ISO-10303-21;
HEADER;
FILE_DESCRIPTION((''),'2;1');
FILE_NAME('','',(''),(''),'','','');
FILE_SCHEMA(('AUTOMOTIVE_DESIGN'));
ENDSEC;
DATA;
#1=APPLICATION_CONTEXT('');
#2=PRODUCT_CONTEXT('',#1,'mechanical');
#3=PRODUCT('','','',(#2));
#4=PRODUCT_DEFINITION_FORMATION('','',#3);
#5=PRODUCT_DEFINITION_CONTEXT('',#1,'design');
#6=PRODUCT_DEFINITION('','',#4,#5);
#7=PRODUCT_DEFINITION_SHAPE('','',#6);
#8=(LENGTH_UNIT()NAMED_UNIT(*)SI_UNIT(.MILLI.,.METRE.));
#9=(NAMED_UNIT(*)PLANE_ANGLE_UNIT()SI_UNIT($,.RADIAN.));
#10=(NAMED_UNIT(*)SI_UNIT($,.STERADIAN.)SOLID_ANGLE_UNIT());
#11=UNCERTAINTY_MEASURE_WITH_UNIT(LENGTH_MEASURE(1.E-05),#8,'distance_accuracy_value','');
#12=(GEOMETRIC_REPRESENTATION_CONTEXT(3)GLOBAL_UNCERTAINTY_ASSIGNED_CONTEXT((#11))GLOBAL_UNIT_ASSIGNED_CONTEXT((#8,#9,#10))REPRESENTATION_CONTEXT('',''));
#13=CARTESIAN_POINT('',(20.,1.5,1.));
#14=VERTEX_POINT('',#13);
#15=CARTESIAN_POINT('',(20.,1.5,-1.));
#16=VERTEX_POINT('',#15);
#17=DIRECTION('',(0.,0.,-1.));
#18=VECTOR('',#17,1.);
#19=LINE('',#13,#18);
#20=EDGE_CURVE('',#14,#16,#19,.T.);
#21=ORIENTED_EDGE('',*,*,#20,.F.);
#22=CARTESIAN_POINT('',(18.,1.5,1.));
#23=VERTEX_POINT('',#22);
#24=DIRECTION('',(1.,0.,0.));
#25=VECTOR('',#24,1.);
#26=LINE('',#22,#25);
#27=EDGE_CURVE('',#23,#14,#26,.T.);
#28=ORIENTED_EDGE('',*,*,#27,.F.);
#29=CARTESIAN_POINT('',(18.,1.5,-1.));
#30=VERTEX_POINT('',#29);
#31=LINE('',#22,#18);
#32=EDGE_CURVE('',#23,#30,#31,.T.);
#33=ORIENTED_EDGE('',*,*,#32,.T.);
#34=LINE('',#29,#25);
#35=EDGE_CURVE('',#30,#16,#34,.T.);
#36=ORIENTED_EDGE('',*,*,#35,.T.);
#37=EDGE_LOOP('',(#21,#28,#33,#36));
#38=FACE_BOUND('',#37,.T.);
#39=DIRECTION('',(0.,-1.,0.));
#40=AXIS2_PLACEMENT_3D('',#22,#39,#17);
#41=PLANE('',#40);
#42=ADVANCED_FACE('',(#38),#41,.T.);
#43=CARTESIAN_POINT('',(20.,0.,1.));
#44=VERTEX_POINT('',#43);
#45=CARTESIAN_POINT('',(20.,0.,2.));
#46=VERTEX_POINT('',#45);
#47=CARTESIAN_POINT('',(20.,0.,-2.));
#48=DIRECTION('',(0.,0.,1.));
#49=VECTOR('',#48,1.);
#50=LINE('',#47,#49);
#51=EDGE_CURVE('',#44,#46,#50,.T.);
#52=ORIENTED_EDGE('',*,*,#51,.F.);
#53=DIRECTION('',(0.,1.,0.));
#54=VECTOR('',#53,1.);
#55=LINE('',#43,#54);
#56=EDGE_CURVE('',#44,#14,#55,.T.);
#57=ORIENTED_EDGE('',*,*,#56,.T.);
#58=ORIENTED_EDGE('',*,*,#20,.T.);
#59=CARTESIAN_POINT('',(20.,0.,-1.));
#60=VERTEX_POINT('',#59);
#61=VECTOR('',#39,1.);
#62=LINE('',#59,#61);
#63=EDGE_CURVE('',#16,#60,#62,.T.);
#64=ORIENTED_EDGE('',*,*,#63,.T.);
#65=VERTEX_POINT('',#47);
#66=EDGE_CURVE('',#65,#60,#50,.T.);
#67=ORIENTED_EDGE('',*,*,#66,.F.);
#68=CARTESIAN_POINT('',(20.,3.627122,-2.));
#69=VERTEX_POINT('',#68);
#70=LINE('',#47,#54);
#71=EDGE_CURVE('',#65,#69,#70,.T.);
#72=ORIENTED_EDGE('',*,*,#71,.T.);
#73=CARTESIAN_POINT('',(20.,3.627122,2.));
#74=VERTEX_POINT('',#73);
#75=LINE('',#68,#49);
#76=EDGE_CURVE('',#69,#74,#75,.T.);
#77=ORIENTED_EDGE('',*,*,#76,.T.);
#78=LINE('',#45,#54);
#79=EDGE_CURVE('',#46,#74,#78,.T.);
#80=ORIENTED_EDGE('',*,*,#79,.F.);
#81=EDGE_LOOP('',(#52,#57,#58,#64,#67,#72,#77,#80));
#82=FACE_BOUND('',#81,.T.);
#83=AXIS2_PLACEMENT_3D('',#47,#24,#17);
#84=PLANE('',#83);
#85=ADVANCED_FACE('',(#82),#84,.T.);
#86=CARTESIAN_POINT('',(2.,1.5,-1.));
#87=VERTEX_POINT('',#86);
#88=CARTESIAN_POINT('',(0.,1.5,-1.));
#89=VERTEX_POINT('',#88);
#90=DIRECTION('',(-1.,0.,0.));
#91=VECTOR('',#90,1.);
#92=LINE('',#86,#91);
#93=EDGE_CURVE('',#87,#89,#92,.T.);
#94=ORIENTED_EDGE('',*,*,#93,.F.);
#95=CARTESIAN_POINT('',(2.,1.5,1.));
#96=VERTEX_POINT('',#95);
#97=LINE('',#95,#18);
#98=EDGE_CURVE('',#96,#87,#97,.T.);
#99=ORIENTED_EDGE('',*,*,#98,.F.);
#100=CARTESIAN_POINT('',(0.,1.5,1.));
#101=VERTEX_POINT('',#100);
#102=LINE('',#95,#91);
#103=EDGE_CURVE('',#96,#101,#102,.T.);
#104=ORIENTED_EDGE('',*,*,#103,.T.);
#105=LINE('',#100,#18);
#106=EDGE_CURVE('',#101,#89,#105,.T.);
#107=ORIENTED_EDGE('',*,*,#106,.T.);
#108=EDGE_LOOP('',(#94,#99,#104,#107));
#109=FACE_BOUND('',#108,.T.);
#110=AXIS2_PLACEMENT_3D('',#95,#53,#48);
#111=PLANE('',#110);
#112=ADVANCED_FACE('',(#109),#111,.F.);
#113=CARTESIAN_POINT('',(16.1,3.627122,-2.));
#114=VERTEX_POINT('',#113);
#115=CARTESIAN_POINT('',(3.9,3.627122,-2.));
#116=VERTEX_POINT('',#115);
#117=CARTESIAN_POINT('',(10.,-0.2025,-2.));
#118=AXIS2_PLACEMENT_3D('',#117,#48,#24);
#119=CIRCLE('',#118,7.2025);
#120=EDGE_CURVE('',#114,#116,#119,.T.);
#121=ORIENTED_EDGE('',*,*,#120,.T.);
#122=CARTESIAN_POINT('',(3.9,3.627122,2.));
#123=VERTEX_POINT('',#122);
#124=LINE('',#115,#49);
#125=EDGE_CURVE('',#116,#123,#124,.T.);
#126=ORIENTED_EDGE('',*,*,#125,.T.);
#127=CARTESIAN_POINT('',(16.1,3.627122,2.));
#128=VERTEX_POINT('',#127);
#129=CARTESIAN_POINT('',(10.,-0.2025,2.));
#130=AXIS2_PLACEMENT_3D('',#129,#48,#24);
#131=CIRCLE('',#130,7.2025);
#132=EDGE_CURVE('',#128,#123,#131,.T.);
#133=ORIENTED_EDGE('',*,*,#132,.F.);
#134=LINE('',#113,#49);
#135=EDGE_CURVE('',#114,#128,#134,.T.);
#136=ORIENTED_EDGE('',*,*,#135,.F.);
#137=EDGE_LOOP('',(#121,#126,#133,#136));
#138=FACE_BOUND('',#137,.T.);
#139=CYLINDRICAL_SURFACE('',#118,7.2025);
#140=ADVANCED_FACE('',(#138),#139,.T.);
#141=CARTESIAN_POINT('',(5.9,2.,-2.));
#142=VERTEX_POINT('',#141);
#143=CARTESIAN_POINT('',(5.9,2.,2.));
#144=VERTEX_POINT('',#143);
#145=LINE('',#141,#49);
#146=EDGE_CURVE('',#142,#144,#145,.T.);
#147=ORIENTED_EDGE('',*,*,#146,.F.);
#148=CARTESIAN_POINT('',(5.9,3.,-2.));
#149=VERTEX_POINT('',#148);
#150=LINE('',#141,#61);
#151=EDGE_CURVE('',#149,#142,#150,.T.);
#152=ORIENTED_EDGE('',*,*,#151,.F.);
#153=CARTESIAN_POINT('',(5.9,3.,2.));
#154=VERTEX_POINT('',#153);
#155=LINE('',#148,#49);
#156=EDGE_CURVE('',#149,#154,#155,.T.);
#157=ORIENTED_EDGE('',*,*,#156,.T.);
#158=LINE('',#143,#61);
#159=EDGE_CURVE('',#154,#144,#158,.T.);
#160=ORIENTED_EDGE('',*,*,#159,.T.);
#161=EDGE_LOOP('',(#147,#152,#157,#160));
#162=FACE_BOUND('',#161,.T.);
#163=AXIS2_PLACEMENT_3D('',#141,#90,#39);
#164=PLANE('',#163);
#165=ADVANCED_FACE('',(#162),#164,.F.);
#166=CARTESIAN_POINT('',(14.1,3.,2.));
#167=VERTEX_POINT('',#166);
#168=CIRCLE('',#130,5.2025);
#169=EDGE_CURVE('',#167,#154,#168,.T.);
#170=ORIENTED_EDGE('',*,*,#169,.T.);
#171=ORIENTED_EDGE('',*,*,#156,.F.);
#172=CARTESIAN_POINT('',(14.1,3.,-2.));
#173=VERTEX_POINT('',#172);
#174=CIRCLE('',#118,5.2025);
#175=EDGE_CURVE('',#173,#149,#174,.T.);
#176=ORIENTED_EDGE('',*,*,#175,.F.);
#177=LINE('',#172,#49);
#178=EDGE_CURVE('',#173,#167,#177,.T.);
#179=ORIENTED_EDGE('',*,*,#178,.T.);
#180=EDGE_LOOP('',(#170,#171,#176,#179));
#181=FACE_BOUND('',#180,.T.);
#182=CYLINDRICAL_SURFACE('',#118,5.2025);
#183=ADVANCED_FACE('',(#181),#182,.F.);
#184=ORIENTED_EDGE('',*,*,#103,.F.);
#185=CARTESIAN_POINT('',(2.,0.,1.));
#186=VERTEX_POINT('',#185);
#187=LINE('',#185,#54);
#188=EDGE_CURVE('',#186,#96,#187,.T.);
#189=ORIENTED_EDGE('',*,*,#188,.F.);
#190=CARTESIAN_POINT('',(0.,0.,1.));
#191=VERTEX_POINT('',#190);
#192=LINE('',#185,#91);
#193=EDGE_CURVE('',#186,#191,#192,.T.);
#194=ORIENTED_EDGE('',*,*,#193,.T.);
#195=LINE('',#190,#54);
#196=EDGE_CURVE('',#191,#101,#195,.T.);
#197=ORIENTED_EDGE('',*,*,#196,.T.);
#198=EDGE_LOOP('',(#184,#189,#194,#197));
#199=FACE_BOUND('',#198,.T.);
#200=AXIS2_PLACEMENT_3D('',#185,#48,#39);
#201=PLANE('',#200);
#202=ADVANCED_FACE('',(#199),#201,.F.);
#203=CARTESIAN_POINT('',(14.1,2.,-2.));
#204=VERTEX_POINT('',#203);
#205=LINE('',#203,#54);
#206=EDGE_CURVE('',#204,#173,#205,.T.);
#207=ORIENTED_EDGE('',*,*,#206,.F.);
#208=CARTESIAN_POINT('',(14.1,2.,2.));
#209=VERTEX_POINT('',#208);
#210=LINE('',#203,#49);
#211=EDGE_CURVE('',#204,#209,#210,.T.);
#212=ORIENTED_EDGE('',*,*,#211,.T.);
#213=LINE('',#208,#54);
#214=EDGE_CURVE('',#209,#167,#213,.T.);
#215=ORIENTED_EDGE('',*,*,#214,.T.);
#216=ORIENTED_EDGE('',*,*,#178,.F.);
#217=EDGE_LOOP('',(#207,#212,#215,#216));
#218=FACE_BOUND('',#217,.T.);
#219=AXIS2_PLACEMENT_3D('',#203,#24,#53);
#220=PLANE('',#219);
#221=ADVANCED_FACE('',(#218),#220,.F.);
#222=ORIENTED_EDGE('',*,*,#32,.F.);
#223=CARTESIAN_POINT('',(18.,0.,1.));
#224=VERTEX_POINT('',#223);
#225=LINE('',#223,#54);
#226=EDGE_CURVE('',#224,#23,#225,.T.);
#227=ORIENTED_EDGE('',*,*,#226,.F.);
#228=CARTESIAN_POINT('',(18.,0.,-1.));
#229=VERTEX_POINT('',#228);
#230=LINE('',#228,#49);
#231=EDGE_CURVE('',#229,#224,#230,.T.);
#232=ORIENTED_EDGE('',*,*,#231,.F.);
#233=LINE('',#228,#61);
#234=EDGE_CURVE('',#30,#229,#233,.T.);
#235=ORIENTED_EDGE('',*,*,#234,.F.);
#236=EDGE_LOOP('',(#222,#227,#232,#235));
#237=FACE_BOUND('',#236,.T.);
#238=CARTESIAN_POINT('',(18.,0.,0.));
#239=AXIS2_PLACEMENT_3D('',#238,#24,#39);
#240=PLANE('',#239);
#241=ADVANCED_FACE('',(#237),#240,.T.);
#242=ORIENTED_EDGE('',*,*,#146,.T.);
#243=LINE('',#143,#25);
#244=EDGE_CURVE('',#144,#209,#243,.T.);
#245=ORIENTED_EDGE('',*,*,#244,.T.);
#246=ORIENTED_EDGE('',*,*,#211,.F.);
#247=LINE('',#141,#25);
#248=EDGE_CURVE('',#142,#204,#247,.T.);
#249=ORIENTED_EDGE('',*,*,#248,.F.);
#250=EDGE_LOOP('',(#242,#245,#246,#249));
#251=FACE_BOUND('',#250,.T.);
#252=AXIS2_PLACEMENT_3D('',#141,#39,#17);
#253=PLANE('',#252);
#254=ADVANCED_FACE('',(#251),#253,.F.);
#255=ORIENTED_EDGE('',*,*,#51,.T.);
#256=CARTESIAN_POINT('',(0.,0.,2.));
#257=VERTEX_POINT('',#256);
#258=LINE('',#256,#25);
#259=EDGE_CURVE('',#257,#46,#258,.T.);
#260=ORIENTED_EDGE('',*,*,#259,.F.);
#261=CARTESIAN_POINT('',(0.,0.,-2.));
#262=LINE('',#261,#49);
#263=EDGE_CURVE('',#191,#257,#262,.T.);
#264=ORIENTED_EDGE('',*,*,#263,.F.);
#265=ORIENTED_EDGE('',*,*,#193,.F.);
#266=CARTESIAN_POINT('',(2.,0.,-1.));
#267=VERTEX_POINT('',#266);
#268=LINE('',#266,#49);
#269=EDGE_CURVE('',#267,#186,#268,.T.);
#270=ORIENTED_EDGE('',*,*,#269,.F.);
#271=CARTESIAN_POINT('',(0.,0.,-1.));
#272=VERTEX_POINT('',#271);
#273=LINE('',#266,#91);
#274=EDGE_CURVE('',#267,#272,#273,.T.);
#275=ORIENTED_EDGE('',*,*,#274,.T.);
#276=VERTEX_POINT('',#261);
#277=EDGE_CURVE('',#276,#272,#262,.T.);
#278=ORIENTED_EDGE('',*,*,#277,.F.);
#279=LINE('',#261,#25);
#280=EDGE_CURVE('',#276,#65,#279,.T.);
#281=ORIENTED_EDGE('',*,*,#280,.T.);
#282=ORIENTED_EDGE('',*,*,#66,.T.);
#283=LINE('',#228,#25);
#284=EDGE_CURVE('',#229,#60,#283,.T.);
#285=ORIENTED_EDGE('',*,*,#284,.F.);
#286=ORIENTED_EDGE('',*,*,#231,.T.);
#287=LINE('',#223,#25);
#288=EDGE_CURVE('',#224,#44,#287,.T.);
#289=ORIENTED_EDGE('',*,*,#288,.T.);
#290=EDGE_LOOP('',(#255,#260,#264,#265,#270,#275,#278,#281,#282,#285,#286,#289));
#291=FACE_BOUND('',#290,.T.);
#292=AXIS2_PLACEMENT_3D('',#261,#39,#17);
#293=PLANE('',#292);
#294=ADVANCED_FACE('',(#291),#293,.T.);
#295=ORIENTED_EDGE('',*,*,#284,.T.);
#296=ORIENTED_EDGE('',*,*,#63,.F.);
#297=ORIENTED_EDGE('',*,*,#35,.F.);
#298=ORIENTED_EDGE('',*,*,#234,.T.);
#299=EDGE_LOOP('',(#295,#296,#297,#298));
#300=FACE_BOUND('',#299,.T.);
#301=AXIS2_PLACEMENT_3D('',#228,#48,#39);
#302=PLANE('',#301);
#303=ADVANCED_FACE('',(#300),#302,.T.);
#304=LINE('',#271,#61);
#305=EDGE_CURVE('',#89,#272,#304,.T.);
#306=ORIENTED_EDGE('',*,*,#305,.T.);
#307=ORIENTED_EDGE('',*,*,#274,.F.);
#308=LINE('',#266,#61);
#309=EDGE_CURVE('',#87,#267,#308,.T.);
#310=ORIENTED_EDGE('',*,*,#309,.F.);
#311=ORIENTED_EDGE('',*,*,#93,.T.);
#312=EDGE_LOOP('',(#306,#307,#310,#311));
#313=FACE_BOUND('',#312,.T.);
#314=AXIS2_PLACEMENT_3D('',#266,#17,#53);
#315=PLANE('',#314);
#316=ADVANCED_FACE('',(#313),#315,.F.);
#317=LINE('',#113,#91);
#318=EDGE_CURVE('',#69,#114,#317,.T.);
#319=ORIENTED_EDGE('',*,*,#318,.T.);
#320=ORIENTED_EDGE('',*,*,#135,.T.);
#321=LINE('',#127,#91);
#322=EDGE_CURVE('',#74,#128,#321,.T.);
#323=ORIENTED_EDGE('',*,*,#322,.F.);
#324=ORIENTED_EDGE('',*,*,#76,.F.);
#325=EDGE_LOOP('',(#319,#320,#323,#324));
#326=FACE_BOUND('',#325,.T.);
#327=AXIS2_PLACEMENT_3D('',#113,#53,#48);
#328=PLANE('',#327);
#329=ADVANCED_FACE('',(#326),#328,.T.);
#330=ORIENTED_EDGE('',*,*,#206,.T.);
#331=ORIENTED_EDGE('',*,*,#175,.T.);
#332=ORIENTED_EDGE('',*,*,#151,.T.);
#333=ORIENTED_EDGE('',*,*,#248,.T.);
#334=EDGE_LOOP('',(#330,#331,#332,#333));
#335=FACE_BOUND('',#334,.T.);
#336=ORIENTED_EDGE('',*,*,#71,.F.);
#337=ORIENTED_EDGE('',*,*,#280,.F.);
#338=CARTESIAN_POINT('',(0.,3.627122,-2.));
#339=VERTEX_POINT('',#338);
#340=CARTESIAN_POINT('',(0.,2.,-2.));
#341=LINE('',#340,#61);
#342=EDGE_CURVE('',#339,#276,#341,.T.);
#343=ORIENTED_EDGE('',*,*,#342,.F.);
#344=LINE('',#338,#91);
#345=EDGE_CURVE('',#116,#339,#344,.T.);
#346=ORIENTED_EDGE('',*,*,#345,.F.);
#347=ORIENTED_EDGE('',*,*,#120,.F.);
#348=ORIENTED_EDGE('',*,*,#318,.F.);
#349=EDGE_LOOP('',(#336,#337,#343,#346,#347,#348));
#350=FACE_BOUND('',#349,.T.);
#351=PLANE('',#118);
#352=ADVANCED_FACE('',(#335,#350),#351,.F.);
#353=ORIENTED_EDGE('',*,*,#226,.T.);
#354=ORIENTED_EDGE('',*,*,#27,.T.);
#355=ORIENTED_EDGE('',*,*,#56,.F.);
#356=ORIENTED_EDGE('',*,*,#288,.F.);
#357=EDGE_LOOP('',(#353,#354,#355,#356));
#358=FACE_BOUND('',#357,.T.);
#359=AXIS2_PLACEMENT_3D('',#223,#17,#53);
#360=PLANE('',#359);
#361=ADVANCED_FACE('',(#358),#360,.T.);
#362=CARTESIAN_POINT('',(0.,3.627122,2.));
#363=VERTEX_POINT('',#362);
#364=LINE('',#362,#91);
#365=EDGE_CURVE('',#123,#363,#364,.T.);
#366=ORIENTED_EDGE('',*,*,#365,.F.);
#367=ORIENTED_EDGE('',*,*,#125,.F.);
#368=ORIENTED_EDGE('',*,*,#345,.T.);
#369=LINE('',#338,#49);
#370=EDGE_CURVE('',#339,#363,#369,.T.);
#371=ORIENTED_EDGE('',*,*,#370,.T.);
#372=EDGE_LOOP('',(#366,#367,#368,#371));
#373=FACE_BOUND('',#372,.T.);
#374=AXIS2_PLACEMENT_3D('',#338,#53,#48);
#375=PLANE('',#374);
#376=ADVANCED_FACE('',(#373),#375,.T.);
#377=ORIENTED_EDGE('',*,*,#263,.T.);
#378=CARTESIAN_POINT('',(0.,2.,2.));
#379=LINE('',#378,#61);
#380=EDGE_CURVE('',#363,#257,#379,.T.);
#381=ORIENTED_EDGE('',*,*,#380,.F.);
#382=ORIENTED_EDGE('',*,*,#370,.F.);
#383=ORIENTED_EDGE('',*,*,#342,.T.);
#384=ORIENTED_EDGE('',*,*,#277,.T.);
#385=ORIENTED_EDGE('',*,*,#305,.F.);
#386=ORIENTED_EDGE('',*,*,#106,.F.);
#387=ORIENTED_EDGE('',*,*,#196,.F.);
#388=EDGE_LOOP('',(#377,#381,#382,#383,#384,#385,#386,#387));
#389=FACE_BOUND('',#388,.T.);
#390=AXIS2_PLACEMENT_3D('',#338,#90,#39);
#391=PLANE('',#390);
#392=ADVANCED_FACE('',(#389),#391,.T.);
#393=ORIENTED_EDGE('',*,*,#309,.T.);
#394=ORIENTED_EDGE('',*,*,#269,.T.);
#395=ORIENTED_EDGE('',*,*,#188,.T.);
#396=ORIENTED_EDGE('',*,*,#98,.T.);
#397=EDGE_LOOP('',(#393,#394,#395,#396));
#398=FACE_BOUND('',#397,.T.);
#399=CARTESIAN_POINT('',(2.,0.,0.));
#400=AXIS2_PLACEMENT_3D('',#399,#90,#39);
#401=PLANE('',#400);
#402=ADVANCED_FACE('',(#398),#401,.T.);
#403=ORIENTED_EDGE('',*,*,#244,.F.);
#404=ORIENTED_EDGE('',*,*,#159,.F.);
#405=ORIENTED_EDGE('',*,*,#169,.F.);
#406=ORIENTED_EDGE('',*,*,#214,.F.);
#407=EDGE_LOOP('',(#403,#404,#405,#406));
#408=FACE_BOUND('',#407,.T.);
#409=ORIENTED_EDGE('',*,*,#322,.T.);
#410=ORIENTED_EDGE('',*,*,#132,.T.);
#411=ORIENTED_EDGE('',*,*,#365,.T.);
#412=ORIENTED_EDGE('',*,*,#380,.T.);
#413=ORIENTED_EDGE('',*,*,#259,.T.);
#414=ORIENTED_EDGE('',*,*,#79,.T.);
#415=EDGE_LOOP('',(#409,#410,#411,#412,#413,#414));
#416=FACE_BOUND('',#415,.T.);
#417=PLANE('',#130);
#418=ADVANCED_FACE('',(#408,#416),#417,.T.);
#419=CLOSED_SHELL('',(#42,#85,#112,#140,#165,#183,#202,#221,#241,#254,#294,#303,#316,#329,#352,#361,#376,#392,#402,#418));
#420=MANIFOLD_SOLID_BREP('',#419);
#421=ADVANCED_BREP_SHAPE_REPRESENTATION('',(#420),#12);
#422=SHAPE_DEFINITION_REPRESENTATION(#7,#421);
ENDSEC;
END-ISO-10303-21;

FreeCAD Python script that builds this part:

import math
import FreeCAD as App
import Part
import Sketcher

V = App.Vector
Q = App.Units.Quantity


def add_polygon(sketch, points):
    """Adds a closed chain of lines whose ends are joined by coincident constraints."""
    first, n = sketch.GeometryCount, len(points)
    for a, b in zip(points, points[1:] + points[:1]):
        sketch.addGeometry(Part.LineSegment(App.Vector(*a, 0), App.Vector(*b, 0)), False)
    for i in range(n):
        sketch.addConstraint(Sketcher.Constraint("Coincident", first + i, 2, first + (i + 1) % n, 1))

doc = App.newDocument("Part")
params = doc.addObject("Spreadsheet::Sheet", "Params")
for row, (alias, value) in enumerate([
    ("sketch1_width", "20 mm"),
    ("sketch1_height", "1 mm"),
    ("sketch1_width2", "3.9 mm"),
    ("sketch1_width3", "8.2 mm"),
    ("pad1_length", "2 mm"),
    ("pad1_length2", "2 mm"),
    ("sketch2_height", "2 mm"),
    ("sketch2_width", "1.5 mm"),
    ("pocket1_length", "2 mm"),
], start=1):
    params.set(f"A{row}", alias)
    params.set(f"B{row}", "=" + value)
    params.setAlias(f"B{row}", alias)

body = doc.addObject("PartDesign::Body", "Body")

sketch1 = body.newObject("Sketcher::SketchObject", "Sketch")
sketch1.AttachmentSupport = (doc.getObject("XY_Plane"), [""])
sketch1.MapMode = "FlatFace"
sketch1.addGeometry([
    Part.LineSegment(V(0, 0, 0), V(20, 0, 0)),
    Part.LineSegment(V(20, 0, 0), V(20, 3.6, 0)),
    Part.LineSegment(V(20, 3.6, 0), V(16.1, 3.6, 0)),
    Part.ArcOfCircle(Part.Circle(V(10, -0.2, 0), V(0, 0, 1), 7.2), math.radians(32), math.radians(148)),
    Part.LineSegment(V(3.9, 3.6, 0), V(0, 3.6, 0)),
    Part.LineSegment(V(0, 3.6, 0), V(0, 0, 0)),
    Part.LineSegment(V(14.1, 2, 0), V(5.9, 2, 0)),
    Part.LineSegment(V(5.9, 2, 0), V(5.9, 3, 0)),
    Part.ArcOfCircle(Part.Circle(V(10, -0.2, 0), V(0, 0, 1), 5.2), math.radians(38), math.radians(142)),
    Part.LineSegment(V(14.1, 3, 0), V(14.1, 2, 0)),
], False)
sketch1.addConstraint([
    Sketcher.Constraint("Coincident", 0, 2, 1, 1),
    Sketcher.Constraint("Coincident", 1, 2, 2, 1),
    Sketcher.Constraint("Coincident", 2, 2, 3, 1),
    Sketcher.Constraint("Coincident", 3, 2, 4, 1),
    Sketcher.Constraint("Coincident", 4, 2, 5, 1),
    Sketcher.Constraint("Coincident", 5, 2, 0, 1),
    Sketcher.Constraint("Coincident", 6, 2, 7, 1),
    Sketcher.Constraint("Coincident", 7, 2, 8, 2),
    Sketcher.Constraint("Coincident", 8, 1, 9, 1),
    Sketcher.Constraint("Coincident", 9, 2, 6, 1),
    Sketcher.Constraint("Horizontal", 0),
    Sketcher.Constraint("Vertical", 1),
    Sketcher.Constraint("Horizontal", 2),
    Sketcher.Constraint("Horizontal", 4),
    Sketcher.Constraint("Vertical", 5),
    Sketcher.Constraint("Horizontal", 6),
    Sketcher.Constraint("Vertical", 7),
    Sketcher.Constraint("Vertical", 9),
    Sketcher.Constraint("Coincident", 5, 2, -1, 1),
    Sketcher.Constraint("Coincident", 8, 3, 3, 3),
    Sketcher.Constraint("Horizontal", 2, 2, 3, 2),
    Sketcher.Constraint("Horizontal", 7, 2, 8, 1),
    Sketcher.Constraint("Equal", 2, 4),
    Sketcher.Constraint("DistanceX", 0, 1, 0, 2, Q("20 mm")),
    Sketcher.Constraint("DistanceY", 7, 1, 7, 2, Q("1 mm")),
    Sketcher.Constraint("DistanceX", 2, 2, 2, 1, Q("3.9 mm")),
    Sketcher.Constraint("DistanceX", 6, 2, 6, 1, Q("8.2 mm")),
    Sketcher.Constraint("DistanceY", -1, 1, 6, 2, Q("2 mm")),
    Sketcher.Constraint("Radius", 3, Q("7.2025 mm")),
    Sketcher.Constraint("Radius", 8, Q("5.2025 mm")),
])
sketch1.setExpression("Constraints[23]", "Params.sketch1_width")
sketch1.setExpression("Constraints[24]", "Params.sketch1_height")
sketch1.setExpression("Constraints[25]", "Params.sketch1_width2")
sketch1.setExpression("Constraints[26]", "Params.sketch1_width3")
pad1 = body.newObject("PartDesign::Pad", "Pad")
pad1.Profile = sketch1
pad1.Type = "TwoLengths"
pad1.setExpression("Length", "Params.pad1_length")
pad1.setExpression("Length2", "Params.pad1_length2")

sketch2 = body.newObject("Sketcher::SketchObject", "Sketch001")
sketch2.AttachmentSupport = (doc.getObject("YZ_Plane"), [""])
sketch2.MapMode = "FlatFace"
add_polygon(sketch2, [(1.5, -1), (0, -1), (0, 1), (1.5, 1)])
sketch2.addConstraint([
    Sketcher.Constraint("Horizontal", 0),
    Sketcher.Constraint("Vertical", 1),
    Sketcher.Constraint("Horizontal", 2),
    Sketcher.Constraint("Vertical", 3),
    Sketcher.Constraint("Symmetric", 0, 2, 1, 2, -1, 1),
    Sketcher.Constraint("DistanceY", 1, 1, 1, 2, Q("2 mm")),
    Sketcher.Constraint("DistanceX", 0, 2, 0, 1, Q("1.5 mm")),
])
sketch2.setExpression("Constraints[9]", "Params.sketch2_height")
sketch2.setExpression("Constraints[10]", "Params.sketch2_width")
pocket1 = body.newObject("PartDesign::Pocket", "Pocket")
pocket1.Profile = sketch2
pocket1.setExpression("Length", "Params.pocket1_length")
pocket1.Reversed = True
doc.recompute()

datumplane = body.newObject("PartDesign::Plane", "DatumPlane")
datumplane.AttachmentSupport = (doc.getObject("YZ_Plane"), [""])
datumplane.MapMode = "FlatFace"
datumplane.AttachmentOffset = App.Placement(V(0, 0, 10), App.Rotation())
mirrored = body.newObject("PartDesign::Mirrored", "Mirrored")
mirrored.Originals = [pocket1]
mirrored.MirrorPlane = (datumplane, [""])
body.Tip = mirrored

doc.recompute()
